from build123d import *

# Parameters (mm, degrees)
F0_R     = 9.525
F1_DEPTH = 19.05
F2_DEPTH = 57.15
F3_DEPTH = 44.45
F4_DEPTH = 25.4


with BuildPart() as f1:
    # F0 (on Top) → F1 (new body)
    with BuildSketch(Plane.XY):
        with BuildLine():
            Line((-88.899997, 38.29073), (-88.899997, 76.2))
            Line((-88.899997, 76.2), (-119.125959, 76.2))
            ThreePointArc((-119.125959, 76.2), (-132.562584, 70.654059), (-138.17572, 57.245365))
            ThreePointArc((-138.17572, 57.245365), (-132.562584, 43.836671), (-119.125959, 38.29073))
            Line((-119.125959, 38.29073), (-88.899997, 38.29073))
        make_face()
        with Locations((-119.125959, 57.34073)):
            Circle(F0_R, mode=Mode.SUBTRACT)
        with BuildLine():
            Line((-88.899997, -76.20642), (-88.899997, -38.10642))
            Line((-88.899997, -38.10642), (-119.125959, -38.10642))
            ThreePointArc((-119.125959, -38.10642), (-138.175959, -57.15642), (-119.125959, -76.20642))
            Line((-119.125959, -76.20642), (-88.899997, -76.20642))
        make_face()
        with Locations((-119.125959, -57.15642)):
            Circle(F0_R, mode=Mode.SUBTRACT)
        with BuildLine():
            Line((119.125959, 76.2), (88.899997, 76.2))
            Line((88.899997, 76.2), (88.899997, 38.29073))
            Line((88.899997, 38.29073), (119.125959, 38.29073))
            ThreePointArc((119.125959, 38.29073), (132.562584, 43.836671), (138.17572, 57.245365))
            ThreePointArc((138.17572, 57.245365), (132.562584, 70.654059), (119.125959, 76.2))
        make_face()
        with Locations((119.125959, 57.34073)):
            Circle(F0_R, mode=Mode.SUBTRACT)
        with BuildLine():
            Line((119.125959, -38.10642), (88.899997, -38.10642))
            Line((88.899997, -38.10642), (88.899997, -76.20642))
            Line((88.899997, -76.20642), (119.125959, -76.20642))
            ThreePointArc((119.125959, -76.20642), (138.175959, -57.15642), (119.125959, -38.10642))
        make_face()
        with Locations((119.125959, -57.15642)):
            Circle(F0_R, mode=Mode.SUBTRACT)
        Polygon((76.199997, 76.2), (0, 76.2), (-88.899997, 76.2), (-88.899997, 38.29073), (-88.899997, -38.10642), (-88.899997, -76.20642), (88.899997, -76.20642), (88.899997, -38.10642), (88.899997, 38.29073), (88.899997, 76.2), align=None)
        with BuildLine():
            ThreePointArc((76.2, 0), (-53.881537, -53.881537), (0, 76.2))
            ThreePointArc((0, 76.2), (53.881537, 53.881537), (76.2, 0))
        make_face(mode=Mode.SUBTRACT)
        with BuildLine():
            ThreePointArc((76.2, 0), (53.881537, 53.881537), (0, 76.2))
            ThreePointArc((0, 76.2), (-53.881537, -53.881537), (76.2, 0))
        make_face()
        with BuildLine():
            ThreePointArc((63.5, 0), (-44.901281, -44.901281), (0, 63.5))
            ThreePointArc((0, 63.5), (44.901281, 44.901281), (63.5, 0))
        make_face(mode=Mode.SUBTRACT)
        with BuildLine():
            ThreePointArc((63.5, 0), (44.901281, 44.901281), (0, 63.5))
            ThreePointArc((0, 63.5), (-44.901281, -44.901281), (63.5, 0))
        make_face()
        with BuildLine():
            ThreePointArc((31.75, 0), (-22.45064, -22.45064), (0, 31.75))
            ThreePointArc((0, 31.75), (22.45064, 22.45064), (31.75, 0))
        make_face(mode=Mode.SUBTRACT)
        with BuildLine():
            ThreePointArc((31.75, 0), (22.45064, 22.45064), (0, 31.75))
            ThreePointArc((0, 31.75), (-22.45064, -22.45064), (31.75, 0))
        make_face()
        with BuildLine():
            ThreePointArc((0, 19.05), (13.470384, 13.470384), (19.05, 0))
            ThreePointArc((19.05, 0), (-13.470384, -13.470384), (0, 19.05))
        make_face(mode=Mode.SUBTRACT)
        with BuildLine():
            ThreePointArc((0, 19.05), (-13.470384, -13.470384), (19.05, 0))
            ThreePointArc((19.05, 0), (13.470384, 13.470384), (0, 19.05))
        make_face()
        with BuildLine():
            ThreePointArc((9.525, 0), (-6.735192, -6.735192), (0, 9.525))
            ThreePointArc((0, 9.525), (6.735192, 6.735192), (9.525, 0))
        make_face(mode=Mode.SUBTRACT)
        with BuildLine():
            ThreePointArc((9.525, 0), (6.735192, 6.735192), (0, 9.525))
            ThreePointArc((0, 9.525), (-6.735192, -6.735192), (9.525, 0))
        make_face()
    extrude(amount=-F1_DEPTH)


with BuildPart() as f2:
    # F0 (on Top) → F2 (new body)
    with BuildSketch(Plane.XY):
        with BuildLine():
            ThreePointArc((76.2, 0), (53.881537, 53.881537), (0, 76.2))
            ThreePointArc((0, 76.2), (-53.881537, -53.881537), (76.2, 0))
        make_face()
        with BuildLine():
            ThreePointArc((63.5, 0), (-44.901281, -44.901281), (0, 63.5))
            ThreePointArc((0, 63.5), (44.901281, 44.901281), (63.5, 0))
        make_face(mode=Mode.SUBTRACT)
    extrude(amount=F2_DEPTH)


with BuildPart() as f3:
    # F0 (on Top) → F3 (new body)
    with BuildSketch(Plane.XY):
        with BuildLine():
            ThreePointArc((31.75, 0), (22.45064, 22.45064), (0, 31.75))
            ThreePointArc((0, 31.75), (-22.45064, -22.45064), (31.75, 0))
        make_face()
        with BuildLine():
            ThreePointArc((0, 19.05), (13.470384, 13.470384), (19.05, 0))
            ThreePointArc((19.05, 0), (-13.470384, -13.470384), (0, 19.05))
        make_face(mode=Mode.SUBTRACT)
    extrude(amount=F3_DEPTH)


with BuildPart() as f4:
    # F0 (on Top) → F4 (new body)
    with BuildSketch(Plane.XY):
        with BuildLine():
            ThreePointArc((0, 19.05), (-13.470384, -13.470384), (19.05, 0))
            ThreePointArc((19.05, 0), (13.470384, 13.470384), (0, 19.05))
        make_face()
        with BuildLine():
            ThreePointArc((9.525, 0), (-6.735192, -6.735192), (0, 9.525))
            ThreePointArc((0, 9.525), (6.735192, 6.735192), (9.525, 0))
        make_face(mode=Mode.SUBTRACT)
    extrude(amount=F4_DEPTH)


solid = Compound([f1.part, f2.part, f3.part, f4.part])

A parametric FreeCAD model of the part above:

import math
import FreeCAD as App
import Part
import Sketcher

V = App.Vector
Q = App.Units.Quantity

doc = App.newDocument("Part")
params = doc.addObject("Spreadsheet::Sheet", "Params")
for row, (alias, value) in enumerate([
    ("sketch1_diameter", "0.75 in"),
    ("sketch1_radius", "0.75 in"),
    ("pad1_length", "0.75 in"),
    ("sketch2_radius", "3 in"),
    ("sketch2_radius2", "2.4999999 in"),
    ("pad2_length", "2.25 in"),
    ("sketch3_radius", "1.25 in"),
    ("sketch3_radius2", "0.75 in"),
    ("pad3_length", "1.75 in"),
    ("sketch4_radius", "0.75 in"),
    ("sketch4_radius2", "0.375 in"),
    ("pad4_length", "1 in"),
], start=1):
    params.set(f"A{row}", alias)
    params.set(f"B{row}", "=" + value)
    params.setAlias(f"B{row}", alias)

body = doc.addObject("PartDesign::Body", "Body")

# Sketch on XY plane
sketch1 = doc.addObject("Sketcher::SketchObject", "Sketch")
body.addObject(sketch1)
sketch1.AttachmentSupport = (doc.XY_Plane, [""])
sketch1.MapMode = "FlatFace"
sketch1.addGeometry([
    Part.ArcOfCircle(Part.Circle(V(-119.125959, 57.150001, 0), V(0, 0, 1), 19.049999), math.radians(89.999999), math.radians(179.713176)),  # 0
    Part.ArcOfCircle(Part.Circle(V(-119.125959, 57.340729, 0), V(0, 0, 1), 19.049999), math.radians(-179.713176), math.radians(-89.999999)),  # 1
    Part.LineSegment(V(-119.125959, 38.29073, 0), V(-88.899997, 38.29073, 0)),  # 2
    Part.LineSegment(V(-88.899997, 38.29073, 0), V(-88.899997, -38.10642, 0)),  # 3
    Part.LineSegment(V(-88.899997, -38.10642, 0), V(-119.125959, -38.10642, 0)),  # 4
    Part.ArcOfCircle(Part.Circle(V(-119.125959, -57.15642, 0), V(0, 0, 1), 19.05), math.radians(90), math.radians(270)),  # 5
    Part.LineSegment(V(-119.125959, -76.20642, 0), V(119.125959, -76.20642, 0)),  # 6
    Part.ArcOfCircle(Part.Circle(V(119.125959, -57.15642, 0), V(0, 0, 1), 19.05), math.radians(-90), math.radians(90)),  # 7
    Part.LineSegment(V(119.125959, -38.10642, 0), V(88.899997, -38.10642, 0)),  # 8
    Part.LineSegment(V(88.899997, -38.10642, 0), V(88.899997, 38.29073, 0)),  # 9
    Part.LineSegment(V(88.899997, 38.29073, 0), V(119.125959, 38.29073, 0)),  # 10
    Part.ArcOfCircle(Part.Circle(V(119.125959, 57.340729, 0), V(0, 0, 1), 19.049999), math.radians(-90.000001), math.radians(-0.286824)),  # 11
    Part.ArcOfCircle(Part.Circle(V(119.125959, 57.150001, 0), V(0, 0, 1), 19.049999), math.radians(0.286824), math.radians(90.000001)),  # 12
    Part.LineSegment(V(119.125959, 76.2, 0), V(-119.125959, 76.2, 0)),  # 13
    Part.Circle(V(-119.125959, -57.15642, 0), V(0, 0, 1), 9.525),  # 14
    Part.Circle(V(119.125959, -57.15642, 0), V(0, 0, 1), 9.525),  # 15
    Part.Circle(V(-119.125959, 57.34073, 0), V(0, 0, 1), 9.525),  # 16
    Part.Circle(V(119.125959, 57.34073, 0), V(0, 0, 1), 9.525),  # 17
], False)
sketch1.addConstraint([
    Sketcher.Constraint("Coincident", 0, 2, 1, 1),
    Sketcher.Constraint("Tangent", 1, 2, 2, 1),
    Sketcher.Constraint("Coincident", 2, 2, 3, 1),
    Sketcher.Constraint("Coincident", 3, 2, 4, 1),
    Sketcher.Constraint("Tangent", 4, 2, 5, 1),
    Sketcher.Constraint("Tangent", 5, 2, 6, 1),
    Sketcher.Constraint("Tangent", 6, 2, 7, 1),
    Sketcher.Constraint("Tangent", 7, 2, 8, 1),
    Sketcher.Constraint("Coincident", 8, 2, 9, 1),
    Sketcher.Constraint("Coincident", 9, 2, 10, 1),
    Sketcher.Constraint("Tangent", 10, 2, 11, 1),
    Sketcher.Constraint("Coincident", 11, 2, 12, 1),
    Sketcher.Constraint("Tangent", 12, 2, 13, 1),
    Sketcher.Constraint("Tangent", 13, 2, 0, 1),
    Sketcher.Constraint("Horizontal", 2),
    Sketcher.Constraint("Vertical", 3),
    Sketcher.Constraint("Horizontal", 4),
    Sketcher.Constraint("Horizontal", 6),
    Sketcher.Constraint("Horizontal", 8),
    Sketcher.Constraint("Vertical", 9),
    Sketcher.Constraint("Horizontal", 10),
    Sketcher.Constraint("Horizontal", 13),
    Sketcher.Constraint("Coincident", 14, 3, 5, 3),
    Sketcher.Constraint("Coincident", 15, 3, 7, 3),
    Sketcher.Constraint("Coincident", 16, 3, 1, 3),
    Sketcher.Constraint("Coincident", 17, 3, 11, 3),
    Sketcher.Constraint("Equal", 0, 1),
    Sketcher.Constraint("Equal", 1, 5),
    Sketcher.Constraint("Equal", 5, 7),
    Sketcher.Constraint("Equal", 7, 11),
    Sketcher.Constraint("Equal", 11, 12),
    Sketcher.Constraint("Equal", 14, 15),
    Sketcher.Constraint("Equal", 15, 16),
    Sketcher.Constraint("Equal", 16, 17),
    Sketcher.Constraint("Symmetric", 1, 3, 11, 3, -2),
    Sketcher.Constraint("Horizontal", 0, 2, 11, 2),
    Sketcher.Constraint("Vertical", 0, 3, 1, 3),
    Sketcher.Constraint("Vertical", 1, 3, 5, 3),
    Sketcher.Constraint("Vertical", 7, 3, 11, 3),
    Sketcher.Constraint("Equal", 4, 8),
    Sketcher.Constraint("Diameter", 14, Q("0.75 in")),
    Sketcher.Constraint("Radius", 0, Q("0.75 in")),
    Sketcher.Constraint("DistanceY", -1, 1, 12, 2, Q("3 in")),
    Sketcher.Constraint("DistanceX", 2, 2, -1, 1, Q("3.4999999 in")),
    Sketcher.Constraint("DistanceX", 2, 1, 2, 2, 30.225962),
    Sketcher.Constraint("DistanceY", 3, 2, 3, 1, 76.39715),
    Sketcher.Constraint("DistanceY", -1, 1, 1, 3, 57.340729),
])
sketch1.setExpression("Constraints[40]", "Params.sketch1_diameter")
sketch1.setExpression("Constraints[41]", "Params.sketch1_radius")
pad1 = doc.addObject("PartDesign::Pad", "Pad")
body.addObject(pad1)
pad1.Profile = sketch1
pad1.setExpression("Length", "Params.pad1_length")
pad1.Reversed = True
body2 = doc.addObject("PartDesign::Body", "Body001")

# Sketch on XY plane
sketch2 = doc.addObject("Sketcher::SketchObject", "Sketch001")
body2.addObject(sketch2)
sketch2.AttachmentSupport = (doc.getObject("XY_Plane001"), [""])
sketch2.MapMode = "FlatFace"
sketch2.addGeometry([
    Part.ArcOfCircle(Part.Circle(V(0, 0, 0), V(0, 0, 1), 76), math.radians(0), math.radians(90)),
    Part.ArcOfCircle(Part.Circle(V(0, 0, 0), V(0, 0, 1), 76), math.radians(90), math.radians(360)),
    Part.ArcOfCircle(Part.Circle(V(0, 0, 0), V(0, 0, 1), 63), math.radians(0), math.radians(90)),
    Part.ArcOfCircle(Part.Circle(V(0, 0, 0), V(0, 0, 1), 64), math.radians(90), math.radians(360)),
], False)
sketch2.addConstraint([
    Sketcher.Constraint("Tangent", 0, 1, 1, 2),
    Sketcher.Constraint("Coincident", 1, 1, 0, 2),
    Sketcher.Constraint("Tangent", 2, 1, 3, 2),
    Sketcher.Constraint("Coincident", 3, 1, 2, 2),
    Sketcher.Constraint("Coincident", 0, 3, -1, 1),
    Sketcher.Constraint("Coincident", 2, 3, -1, 1),
    Sketcher.Constraint("PointOnObject", 0, 1, -1),
    Sketcher.Constraint("PointOnObject", 1, 1, -2),
    Sketcher.Constraint("PointOnObject", 2, 1, -1),
    Sketcher.Constraint("PointOnObject", 3, 1, -2),
    Sketcher.Constraint("Radius", 0, Q("3 in")),
    Sketcher.Constraint("Radius", 2, Q("2.4999999 in")),
])
sketch2.setExpression("Constraints[10]", "Params.sketch2_radius")
sketch2.setExpression("Constraints[11]", "Params.sketch2_radius2")
pad2 = doc.addObject("PartDesign::Pad", "Pad001")
body2.addObject(pad2)
pad2.Profile = sketch2
pad2.setExpression("Length", "Params.pad2_length")
body3 = doc.addObject("PartDesign::Body", "Body002")

# Sketch on XY plane
sketch3 = doc.addObject("Sketcher::SketchObject", "Sketch002")
body3.addObject(sketch3)
sketch3.AttachmentSupport = (doc.getObject("XY_Plane002"), [""])
sketch3.MapMode = "FlatFace"
sketch3.addGeometry([
    Part.ArcOfCircle(Part.Circle(V(0, 0, 0), V(0, 0, 1), 32), math.radians(0), math.radians(90)),
    Part.ArcOfCircle(Part.Circle(V(0, 0, 0), V(0, 0, 1), 32), math.radians(90), math.radians(360)),
    Part.ArcOfCircle(Part.Circle(V(0, 0, 0), V(0, 0, 1), 19), math.radians(90), math.radians(360)),
    Part.ArcOfCircle(Part.Circle(V(0, 0, 0), V(0, 0, 1), 19), math.radians(0), math.radians(90)),
], False)
sketch3.addConstraint([
    Sketcher.Constraint("Tangent", 0, 1, 1, 2),
    Sketcher.Constraint("Coincident", 1, 1, 0, 2),
    Sketcher.Constraint("Tangent", 2, 1, 3, 2),
    Sketcher.Constraint("Coincident", 3, 1, 2, 2),
    Sketcher.Constraint("Coincident", 0, 3, -1, 1),
    Sketcher.Constraint("Coincident", 2, 3, -1, 1),
    Sketcher.Constraint("PointOnObject", 0, 1, -1),
    Sketcher.Constraint("PointOnObject", 1, 1, -2),
    Sketcher.Constraint("PointOnObject", 2, 1, -2),
    Sketcher.Constraint("PointOnObject", 3, 1, -1),
    Sketcher.Constraint("Radius", 0, Q("1.25 in")),
    Sketcher.Constraint("Radius", 2, Q("0.75 in")),
])
sketch3.setExpression("Constraints[10]", "Params.sketch3_radius")
sketch3.setExpression("Constraints[11]", "Params.sketch3_radius2")
pad3 = doc.addObject("PartDesign::Pad", "Pad002")
body3.addObject(pad3)
pad3.Profile = sketch3
pad3.setExpression("Length", "Params.pad3_length")
body4 = doc.addObject("PartDesign::Body", "Body003")

# Sketch on XY plane
sketch4 = doc.addObject("Sketcher::SketchObject", "Sketch003")
body4.addObject(sketch4)
sketch4.AttachmentSupport = (doc.getObject("XY_Plane003"), [""])
sketch4.MapMode = "FlatFace"
sketch4.addGeometry([
    Part.ArcOfCircle(Part.Circle(V(0, 0, 0), V(0, 0, 1), 19), math.radians(90), math.radians(360)),
    Part.ArcOfCircle(Part.Circle(V(0, 0, 0), V(0, 0, 1), 19), math.radians(0), math.radians(90)),
    Part.ArcOfCircle(Part.Circle(V(0, 0, 0), V(0, 0, 1), 10), math.radians(0), math.radians(90)),
    Part.ArcOfCircle(Part.Circle(V(0, 0, 0), V(0, 0, 1), 10), math.radians(90), math.radians(360)),
], False)
sketch4.addConstraint([
    Sketcher.Constraint("Tangent", 0, 1, 1, 2),
    Sketcher.Constraint("Coincident", 1, 1, 0, 2),
    Sketcher.Constraint("Tangent", 2, 1, 3, 2),
    Sketcher.Constraint("Coincident", 3, 1, 2, 2),
    Sketcher.Constraint("Coincident", 0, 3, -1, 1),
    Sketcher.Constraint("Coincident", 2, 3, -1, 1),
    Sketcher.Constraint("PointOnObject", 0, 1, -2),
    Sketcher.Constraint("PointOnObject", 1, 1, -1),
    Sketcher.Constraint("PointOnObject", 2, 1, -1),
    Sketcher.Constraint("PointOnObject", 3, 1, -2),
    Sketcher.Constraint("Radius", 0, Q("0.75 in")),
    Sketcher.Constraint("Radius", 2, Q("0.375 in")),
])
sketch4.setExpression("Constraints[10]", "Params.sketch4_radius")
sketch4.setExpression("Constraints[11]", "Params.sketch4_radius2")
pad4 = doc.addObject("PartDesign::Pad", "Pad003")
body4.addObject(pad4)
pad4.Profile = sketch4
pad4.setExpression("Length", "Params.pad4_length")

doc.recompute()
